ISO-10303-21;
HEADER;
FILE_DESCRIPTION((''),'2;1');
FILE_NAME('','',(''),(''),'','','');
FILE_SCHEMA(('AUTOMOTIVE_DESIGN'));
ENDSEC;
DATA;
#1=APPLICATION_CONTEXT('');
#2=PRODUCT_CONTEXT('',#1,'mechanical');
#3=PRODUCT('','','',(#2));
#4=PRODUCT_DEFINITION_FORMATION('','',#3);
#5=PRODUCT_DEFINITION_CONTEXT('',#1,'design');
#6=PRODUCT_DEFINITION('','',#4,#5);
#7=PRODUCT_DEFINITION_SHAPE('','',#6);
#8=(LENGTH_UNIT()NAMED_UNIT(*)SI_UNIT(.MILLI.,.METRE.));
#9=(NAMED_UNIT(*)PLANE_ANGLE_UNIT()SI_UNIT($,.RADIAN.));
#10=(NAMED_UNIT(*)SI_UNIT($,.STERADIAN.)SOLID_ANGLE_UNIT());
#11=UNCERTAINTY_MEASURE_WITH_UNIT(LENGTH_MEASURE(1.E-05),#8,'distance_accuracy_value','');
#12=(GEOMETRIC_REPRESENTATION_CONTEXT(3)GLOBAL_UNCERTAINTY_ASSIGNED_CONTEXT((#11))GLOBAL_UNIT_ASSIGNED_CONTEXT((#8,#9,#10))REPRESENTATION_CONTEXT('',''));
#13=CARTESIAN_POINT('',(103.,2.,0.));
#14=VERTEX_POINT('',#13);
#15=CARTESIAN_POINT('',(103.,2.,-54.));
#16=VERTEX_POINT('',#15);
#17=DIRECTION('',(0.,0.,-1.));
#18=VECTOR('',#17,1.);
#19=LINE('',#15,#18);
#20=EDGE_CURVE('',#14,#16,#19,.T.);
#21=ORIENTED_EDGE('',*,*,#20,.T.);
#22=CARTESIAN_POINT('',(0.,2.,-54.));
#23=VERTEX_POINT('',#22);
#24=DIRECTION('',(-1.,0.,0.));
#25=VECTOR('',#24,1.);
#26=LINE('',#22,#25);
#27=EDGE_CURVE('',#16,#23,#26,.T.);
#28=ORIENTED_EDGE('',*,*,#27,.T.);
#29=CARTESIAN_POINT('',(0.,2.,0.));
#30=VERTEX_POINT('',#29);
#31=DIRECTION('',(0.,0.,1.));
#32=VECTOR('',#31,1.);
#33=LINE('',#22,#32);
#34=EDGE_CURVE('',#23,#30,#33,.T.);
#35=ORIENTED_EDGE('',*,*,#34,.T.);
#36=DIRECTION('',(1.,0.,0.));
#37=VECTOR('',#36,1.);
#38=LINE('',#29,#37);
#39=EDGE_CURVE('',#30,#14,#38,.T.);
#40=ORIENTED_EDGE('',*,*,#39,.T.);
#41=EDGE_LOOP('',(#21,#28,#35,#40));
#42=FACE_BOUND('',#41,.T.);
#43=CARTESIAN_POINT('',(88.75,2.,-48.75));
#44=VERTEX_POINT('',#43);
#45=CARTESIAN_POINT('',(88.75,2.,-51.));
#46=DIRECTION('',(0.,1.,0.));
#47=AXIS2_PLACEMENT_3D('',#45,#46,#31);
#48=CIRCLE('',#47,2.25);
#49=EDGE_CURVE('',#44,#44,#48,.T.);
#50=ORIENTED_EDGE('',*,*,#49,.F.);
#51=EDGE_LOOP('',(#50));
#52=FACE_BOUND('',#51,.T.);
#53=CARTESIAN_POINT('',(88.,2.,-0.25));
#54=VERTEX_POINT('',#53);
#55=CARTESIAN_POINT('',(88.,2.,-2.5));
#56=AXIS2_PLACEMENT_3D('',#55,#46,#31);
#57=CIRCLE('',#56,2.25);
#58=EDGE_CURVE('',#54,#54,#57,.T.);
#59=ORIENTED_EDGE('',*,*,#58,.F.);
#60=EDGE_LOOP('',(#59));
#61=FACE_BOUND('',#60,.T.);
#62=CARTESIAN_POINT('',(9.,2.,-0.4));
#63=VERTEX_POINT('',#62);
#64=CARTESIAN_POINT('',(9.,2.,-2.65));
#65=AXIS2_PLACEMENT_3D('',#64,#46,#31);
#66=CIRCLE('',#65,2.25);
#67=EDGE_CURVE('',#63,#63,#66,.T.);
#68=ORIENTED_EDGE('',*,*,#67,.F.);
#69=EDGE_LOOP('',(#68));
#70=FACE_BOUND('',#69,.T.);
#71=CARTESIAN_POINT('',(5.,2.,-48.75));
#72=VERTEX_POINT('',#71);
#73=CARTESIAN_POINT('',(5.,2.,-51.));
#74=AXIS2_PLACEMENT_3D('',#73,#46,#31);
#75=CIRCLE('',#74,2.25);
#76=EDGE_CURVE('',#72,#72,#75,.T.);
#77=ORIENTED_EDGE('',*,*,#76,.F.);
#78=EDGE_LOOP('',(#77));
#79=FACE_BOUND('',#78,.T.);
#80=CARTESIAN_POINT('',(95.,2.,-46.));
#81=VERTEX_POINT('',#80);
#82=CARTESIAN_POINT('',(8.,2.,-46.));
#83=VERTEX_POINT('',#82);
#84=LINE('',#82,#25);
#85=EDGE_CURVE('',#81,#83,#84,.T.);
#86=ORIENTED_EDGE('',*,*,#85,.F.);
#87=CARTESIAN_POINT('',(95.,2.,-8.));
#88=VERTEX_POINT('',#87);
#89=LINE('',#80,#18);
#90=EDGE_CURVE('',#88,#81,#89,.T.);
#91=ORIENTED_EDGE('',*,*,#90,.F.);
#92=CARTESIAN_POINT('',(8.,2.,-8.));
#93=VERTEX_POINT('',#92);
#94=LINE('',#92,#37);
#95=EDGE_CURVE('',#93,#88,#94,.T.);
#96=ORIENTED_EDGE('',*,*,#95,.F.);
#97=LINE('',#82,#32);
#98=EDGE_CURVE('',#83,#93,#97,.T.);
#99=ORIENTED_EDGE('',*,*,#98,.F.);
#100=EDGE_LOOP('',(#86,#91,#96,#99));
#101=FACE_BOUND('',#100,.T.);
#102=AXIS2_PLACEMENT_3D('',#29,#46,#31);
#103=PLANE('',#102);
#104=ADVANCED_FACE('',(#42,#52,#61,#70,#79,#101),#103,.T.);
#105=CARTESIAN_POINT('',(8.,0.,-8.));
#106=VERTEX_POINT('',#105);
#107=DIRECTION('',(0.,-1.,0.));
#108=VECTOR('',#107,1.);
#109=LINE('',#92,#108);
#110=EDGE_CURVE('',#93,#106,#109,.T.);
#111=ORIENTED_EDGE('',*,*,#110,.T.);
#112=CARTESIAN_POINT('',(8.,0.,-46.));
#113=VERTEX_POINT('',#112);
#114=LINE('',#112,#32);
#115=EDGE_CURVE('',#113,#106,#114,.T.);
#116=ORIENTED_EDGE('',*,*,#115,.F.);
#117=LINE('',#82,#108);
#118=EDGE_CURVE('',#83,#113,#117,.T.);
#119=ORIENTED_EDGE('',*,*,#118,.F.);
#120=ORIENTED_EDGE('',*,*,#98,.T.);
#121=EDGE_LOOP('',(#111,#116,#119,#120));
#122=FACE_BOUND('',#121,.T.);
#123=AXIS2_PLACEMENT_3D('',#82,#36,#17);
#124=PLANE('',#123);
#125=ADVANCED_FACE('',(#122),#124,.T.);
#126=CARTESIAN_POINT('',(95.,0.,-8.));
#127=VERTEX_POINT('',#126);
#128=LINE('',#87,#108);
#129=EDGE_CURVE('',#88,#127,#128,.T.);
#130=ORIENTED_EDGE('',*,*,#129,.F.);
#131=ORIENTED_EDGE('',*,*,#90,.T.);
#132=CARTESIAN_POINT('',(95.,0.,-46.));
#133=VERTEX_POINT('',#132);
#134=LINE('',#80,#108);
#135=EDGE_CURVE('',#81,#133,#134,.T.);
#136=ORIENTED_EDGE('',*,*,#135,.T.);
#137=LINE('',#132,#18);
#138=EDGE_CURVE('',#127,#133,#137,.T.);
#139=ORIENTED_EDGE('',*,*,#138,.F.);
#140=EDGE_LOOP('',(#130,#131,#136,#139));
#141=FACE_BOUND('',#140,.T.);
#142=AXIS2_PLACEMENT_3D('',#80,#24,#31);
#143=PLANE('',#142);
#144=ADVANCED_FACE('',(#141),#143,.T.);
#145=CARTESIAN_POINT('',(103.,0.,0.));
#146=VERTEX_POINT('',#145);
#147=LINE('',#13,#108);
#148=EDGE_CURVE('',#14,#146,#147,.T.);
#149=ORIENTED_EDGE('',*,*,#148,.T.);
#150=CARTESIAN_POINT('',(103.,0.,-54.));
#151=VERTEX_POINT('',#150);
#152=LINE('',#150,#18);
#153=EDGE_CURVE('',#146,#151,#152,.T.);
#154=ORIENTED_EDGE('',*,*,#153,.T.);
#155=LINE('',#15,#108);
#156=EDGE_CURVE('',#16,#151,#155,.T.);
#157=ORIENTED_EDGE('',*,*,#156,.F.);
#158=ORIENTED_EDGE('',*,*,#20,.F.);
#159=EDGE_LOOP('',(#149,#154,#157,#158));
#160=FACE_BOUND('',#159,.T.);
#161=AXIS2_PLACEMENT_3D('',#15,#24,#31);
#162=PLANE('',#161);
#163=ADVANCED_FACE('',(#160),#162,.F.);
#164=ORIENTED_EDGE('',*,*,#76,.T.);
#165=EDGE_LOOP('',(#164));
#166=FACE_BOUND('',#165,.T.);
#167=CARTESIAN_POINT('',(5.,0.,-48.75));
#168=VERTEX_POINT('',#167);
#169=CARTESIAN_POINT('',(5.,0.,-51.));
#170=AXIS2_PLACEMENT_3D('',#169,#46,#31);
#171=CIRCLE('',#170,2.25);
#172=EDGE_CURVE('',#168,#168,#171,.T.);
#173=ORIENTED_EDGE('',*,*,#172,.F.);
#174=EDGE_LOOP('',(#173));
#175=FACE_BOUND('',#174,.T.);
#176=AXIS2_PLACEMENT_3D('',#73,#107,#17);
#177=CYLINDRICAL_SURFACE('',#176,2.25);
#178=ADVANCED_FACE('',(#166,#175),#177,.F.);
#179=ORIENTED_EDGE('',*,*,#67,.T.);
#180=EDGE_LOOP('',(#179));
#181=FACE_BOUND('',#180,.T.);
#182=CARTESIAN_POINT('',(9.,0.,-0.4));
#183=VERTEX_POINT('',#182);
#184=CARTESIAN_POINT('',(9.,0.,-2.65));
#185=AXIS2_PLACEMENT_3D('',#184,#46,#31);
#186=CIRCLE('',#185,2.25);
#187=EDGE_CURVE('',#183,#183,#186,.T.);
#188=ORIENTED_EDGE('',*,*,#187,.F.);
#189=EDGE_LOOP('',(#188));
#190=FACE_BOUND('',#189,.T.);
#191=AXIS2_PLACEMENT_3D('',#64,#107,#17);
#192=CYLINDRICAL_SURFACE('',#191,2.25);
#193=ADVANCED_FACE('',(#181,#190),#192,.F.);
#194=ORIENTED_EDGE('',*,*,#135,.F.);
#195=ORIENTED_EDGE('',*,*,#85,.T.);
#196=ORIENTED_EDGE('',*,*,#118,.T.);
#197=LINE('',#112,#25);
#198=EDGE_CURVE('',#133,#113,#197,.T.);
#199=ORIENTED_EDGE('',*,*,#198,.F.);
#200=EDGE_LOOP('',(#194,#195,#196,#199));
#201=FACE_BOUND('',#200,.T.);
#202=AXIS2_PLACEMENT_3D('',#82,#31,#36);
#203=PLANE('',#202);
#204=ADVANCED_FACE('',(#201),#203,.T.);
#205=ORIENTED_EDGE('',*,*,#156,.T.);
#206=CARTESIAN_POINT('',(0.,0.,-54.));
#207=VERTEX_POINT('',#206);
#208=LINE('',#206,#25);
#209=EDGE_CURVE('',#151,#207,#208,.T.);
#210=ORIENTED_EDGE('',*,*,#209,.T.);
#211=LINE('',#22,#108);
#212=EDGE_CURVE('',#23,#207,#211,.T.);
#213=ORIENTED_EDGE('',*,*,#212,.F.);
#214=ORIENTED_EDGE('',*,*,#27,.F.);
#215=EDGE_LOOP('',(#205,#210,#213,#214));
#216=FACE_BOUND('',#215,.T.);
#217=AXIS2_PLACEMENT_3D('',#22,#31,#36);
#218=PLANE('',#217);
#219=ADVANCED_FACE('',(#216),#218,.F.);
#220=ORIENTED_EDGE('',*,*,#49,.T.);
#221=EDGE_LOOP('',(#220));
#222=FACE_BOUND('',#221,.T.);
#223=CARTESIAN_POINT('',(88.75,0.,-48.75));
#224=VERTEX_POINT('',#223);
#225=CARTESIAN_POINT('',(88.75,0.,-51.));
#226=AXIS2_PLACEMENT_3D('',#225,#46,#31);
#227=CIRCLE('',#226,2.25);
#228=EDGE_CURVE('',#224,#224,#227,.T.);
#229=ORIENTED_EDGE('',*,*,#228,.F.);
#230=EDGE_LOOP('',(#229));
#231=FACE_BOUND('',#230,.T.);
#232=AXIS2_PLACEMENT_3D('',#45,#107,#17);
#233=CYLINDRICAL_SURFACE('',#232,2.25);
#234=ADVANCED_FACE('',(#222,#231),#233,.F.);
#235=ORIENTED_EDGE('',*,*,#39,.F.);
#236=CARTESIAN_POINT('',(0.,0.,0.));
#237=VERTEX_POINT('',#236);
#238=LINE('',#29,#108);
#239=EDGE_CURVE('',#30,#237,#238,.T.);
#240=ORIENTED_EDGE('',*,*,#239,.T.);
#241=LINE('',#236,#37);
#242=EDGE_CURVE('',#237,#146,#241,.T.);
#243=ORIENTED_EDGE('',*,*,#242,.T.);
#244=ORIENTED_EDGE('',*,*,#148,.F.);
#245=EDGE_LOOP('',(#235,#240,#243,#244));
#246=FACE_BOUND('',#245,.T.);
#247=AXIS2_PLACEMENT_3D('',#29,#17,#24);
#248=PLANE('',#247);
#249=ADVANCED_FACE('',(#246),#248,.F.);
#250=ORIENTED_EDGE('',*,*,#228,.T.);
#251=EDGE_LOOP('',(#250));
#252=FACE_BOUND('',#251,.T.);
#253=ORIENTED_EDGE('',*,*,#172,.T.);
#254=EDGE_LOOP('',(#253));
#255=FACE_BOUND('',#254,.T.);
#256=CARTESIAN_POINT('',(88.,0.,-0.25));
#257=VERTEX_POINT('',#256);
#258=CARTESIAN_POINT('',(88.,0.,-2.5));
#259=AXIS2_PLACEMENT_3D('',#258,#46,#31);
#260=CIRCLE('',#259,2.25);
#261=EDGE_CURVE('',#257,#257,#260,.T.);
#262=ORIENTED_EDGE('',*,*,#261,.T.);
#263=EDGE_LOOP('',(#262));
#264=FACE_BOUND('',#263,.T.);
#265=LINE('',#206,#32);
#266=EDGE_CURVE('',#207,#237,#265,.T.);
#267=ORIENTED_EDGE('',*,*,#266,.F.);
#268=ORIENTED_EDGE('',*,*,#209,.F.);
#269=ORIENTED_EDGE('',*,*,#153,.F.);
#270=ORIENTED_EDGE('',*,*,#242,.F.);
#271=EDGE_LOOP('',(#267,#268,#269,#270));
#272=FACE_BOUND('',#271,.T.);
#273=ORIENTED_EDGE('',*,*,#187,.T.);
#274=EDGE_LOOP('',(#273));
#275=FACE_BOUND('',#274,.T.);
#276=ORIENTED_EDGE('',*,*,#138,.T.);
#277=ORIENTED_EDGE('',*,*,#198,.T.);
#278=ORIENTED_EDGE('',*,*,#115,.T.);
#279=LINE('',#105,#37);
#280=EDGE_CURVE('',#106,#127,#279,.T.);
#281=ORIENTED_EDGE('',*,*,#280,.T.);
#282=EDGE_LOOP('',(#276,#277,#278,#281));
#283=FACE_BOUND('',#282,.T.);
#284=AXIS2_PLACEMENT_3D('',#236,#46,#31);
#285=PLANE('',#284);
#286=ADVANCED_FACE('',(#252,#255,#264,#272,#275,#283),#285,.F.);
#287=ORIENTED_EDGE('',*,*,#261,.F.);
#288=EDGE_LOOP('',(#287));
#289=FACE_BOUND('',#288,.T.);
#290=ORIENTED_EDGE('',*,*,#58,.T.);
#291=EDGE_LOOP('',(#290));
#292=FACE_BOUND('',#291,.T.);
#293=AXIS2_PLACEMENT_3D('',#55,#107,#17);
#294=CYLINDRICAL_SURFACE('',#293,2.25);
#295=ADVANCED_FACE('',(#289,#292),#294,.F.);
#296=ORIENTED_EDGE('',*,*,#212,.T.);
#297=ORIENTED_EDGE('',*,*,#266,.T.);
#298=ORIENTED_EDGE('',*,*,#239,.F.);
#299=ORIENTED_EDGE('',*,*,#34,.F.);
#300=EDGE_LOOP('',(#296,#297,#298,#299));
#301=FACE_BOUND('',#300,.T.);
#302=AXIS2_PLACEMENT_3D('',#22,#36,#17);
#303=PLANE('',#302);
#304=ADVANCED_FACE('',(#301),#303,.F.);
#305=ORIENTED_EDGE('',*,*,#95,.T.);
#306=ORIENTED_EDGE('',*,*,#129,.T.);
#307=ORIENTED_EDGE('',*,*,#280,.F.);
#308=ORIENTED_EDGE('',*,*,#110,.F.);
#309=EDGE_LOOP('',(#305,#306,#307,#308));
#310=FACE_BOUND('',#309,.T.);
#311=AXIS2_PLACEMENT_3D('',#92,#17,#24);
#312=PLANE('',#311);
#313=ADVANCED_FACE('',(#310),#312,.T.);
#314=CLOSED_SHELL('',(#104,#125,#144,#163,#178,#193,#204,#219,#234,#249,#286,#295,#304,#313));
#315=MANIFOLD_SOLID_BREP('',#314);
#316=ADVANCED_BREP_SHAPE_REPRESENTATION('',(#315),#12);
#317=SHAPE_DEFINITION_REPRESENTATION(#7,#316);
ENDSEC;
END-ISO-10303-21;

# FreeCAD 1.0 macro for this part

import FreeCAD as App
import Part
import Sketcher

V = App.Vector
Q = App.Units.Quantity


def add_polygon(sketch, points):
    """Adds a closed chain of lines whose ends are joined by coincident constraints."""
    first, n = sketch.GeometryCount, len(points)
    for a, b in zip(points, points[1:] + points[:1]):
        sketch.addGeometry(Part.LineSegment(App.Vector(*a, 0), App.Vector(*b, 0)), False)
    for i in range(n):
        sketch.addConstraint(Sketcher.Constraint("Coincident", first + i, 2, first + (i + 1) % n, 1))

doc = App.newDocument("Part")
body = doc.addObject("PartDesign::Body", "Body")

sketch1 = body.newObject("Sketcher::SketchObject", "Sketch")
sketch1.AttachmentSupport = (doc.getObject("XZ_Plane"), [""])
sketch1.MapMode = "FlatFace"
add_polygon(sketch1, [(0, -54), (0, 0), (103, 0), (103, -54)])
sketch1.addGeometry(Part.Circle(V(9, -2.6, 0), V(0, 0, 1), 2.2), False)
sketch1.addGeometry(Part.Circle(V(88, -2.5, 0), V(0, 0, 1), 2.2), False)
sketch1.addGeometry(Part.Circle(V(5, -51, 0), V(0, 0, 1), 2.2), False)
add_polygon(sketch1, [(95, -8), (8, -8), (8, -46), (95, -46)])
sketch1.addGeometry(Part.Circle(V(88.8, -51, 0), V(0, 0, 1), 2.2), False)
sketch1.addConstraint(Sketcher.Constraint("Vertical", 0))
sketch1.addConstraint(Sketcher.Constraint("Horizontal", 1))
sketch1.addConstraint(Sketcher.Constraint("Vertical", 2))
sketch1.addConstraint(Sketcher.Constraint("Horizontal", 3))
sketch1.addConstraint(Sketcher.Constraint("Horizontal", 7))
sketch1.addConstraint(Sketcher.Constraint("Vertical", 8))
sketch1.addConstraint(Sketcher.Constraint("Horizontal", 9))
sketch1.addConstraint(Sketcher.Constraint("Vertical", 10))
sketch1.addConstraint(Sketcher.Constraint("Coincident", 0, 2, -1, 1))
sketch1.addConstraint(Sketcher.Constraint("Equal", 4, 5))
sketch1.addConstraint(Sketcher.Constraint("Equal", 5, 6))
sketch1.addConstraint(Sketcher.Constraint("Equal", 6, 11))
sketch1.addConstraint(Sketcher.Constraint("Horizontal", 6, 3, 11, 3))
sketch1.addConstraint(Sketcher.Constraint("Diameter", 4, Q("4.5 mm")))
sketch1.addConstraint(Sketcher.Constraint("DistanceX", 1, 1, 1, 2, Q("103 mm")))
sketch1.addConstraint(Sketcher.Constraint("DistanceX", 7, 2, 7, 1, Q("87 mm")))
sketch1.addConstraint(Sketcher.Constraint("DistanceY", 0, 1, 0, 2, Q("54 mm")))
sketch1.addConstraint(Sketcher.Constraint("DistanceY", 8, 2, 8, 1, Q("38 mm")))
sketch1.addConstraint(Sketcher.Constraint("DistanceX", -1, 1, 4, 3, Q("9 mm")))
sketch1.addConstraint(Sketcher.Constraint("DistanceX", -1, 1, 5, 3, Q("88 mm")))
sketch1.addConstraint(Sketcher.Constraint("DistanceX", -1, 1, 6, 3, Q("5 mm")))
sketch1.addConstraint(Sketcher.Constraint("DistanceY", 6, 3, -1, 1, Q("51 mm")))
sketch1.addConstraint(Sketcher.Constraint("DistanceX", -1, 1, 7, 2, Q("8 mm")))
sketch1.addConstraint(Sketcher.Constraint("DistanceY", 7, 2, -1, 1, Q("8 mm")))
sketch1.addConstraint(Sketcher.Constraint("DistanceY", 5, 3, -1, 1, Q("2.5 mm")))
sketch1.addConstraint(Sketcher.Constraint("DistanceY", 4, 3, -1, 1, Q("2.65 mm")))
sketch1.addConstraint(Sketcher.Constraint("DistanceX", -1, 1, 11, 3, Q("88.75 mm")))
pad1 = body.newObject("PartDesign::Pad", "Pad")
pad1.Profile = sketch1
pad1.Length = 2
pad1.Reversed = True

doc.recompute()
